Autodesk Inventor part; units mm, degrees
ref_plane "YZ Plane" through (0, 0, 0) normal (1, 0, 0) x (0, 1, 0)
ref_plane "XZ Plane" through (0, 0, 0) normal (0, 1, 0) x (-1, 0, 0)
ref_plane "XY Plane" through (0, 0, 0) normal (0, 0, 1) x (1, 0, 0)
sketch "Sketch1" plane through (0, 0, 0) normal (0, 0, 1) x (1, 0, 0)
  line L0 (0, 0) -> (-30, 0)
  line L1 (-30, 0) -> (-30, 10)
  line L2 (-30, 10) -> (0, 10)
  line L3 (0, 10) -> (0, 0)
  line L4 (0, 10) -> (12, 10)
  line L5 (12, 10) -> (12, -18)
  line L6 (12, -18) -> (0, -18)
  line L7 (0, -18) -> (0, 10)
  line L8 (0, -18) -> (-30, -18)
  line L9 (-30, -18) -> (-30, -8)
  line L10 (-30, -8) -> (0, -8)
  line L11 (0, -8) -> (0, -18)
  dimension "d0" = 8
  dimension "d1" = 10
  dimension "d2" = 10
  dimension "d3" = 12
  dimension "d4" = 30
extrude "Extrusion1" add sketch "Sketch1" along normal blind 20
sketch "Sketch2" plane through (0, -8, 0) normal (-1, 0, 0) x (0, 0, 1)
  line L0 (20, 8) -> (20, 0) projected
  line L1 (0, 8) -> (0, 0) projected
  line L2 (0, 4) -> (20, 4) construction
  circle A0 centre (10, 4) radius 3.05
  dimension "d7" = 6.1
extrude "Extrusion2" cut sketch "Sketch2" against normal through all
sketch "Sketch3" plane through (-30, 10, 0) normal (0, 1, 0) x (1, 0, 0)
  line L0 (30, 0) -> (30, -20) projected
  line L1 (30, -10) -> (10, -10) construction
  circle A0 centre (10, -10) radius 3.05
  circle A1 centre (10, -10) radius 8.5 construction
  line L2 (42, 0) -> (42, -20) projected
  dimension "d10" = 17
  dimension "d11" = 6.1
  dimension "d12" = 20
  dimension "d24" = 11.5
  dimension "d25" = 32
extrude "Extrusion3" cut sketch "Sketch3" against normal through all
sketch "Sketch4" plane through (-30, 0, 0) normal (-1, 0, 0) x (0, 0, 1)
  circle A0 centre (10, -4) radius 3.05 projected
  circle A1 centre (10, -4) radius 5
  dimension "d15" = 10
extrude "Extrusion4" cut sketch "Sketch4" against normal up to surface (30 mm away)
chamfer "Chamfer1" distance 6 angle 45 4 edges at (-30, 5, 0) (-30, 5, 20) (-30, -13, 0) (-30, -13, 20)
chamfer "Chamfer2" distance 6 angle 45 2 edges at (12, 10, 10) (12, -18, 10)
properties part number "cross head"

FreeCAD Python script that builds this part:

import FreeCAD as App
import Part
import Sketcher


def edges_at(feature, points):
    """Names of the edges that pass closest to the given points."""
    edges = feature.Shape.Edges
    near = lambda p: min(range(len(edges)), key=lambda i: edges[i].distToShape(Part.Vertex(*p))[0])
    return sorted({f"Edge{near(p) + 1}" for p in points})


def add_polygon(sketch, points):
    """Adds a closed chain of lines whose ends are joined by coincident constraints."""
    first, n = sketch.GeometryCount, len(points)
    for a, b in zip(points, points[1:] + points[:1]):
        sketch.addGeometry(Part.LineSegment(App.Vector(*a, 0), App.Vector(*b, 0)), False)
    for i in range(n):
        sketch.addConstraint(Sketcher.Constraint("Coincident", first + i, 2, first + (i + 1) % n, 1))

doc = App.newDocument("Part")
body = doc.addObject("PartDesign::Body", "Body")

sketch1 = body.newObject("Sketcher::SketchObject", "Sketch")
sketch1.AttachmentSupport = (doc.getObject("XY_Plane"), [""])
sketch1.MapMode = "FlatFace"
add_polygon(sketch1, [(-30, 0), (0, 0), (0, -8), (-30, -8), (-30, -18), (12, -18), (12, 10), (-30, 10)])
sketch1.addConstraint(Sketcher.Constraint("Horizontal", 0))
sketch1.addConstraint(Sketcher.Constraint("Vertical", 1))
sketch1.addConstraint(Sketcher.Constraint("Horizontal", 2))
sketch1.addConstraint(Sketcher.Constraint("Vertical", 3))
sketch1.addConstraint(Sketcher.Constraint("Horizontal", 4))
sketch1.addConstraint(Sketcher.Constraint("Vertical", 5))
sketch1.addConstraint(Sketcher.Constraint("Horizontal", 6))
sketch1.addConstraint(Sketcher.Constraint("Vertical", 7))
sketch1.addConstraint(Sketcher.Constraint("Coincident", 0, 2, -1, 1))
sketch1.addConstraint(Sketcher.Constraint("Vertical", 3, 2, 6, 2))
sketch1.addConstraint(Sketcher.Constraint("Equal", 3, 7))
sketch1.addConstraint(Sketcher.Constraint("DistanceX", 0, 1, 0, 2, 30.0))
sketch1.addConstraint(Sketcher.Constraint("DistanceY", 1, 2, 1, 1, 8.0))
sketch1.addConstraint(Sketcher.Constraint("DistanceY", 3, 2, 3, 1, 10.0))
sketch1.addConstraint(Sketcher.Constraint("DistanceX", -1, 1, 4, 2, 12.0))
pad1 = body.newObject("PartDesign::Pad", "Pad")
pad1.Profile = sketch1
pad1.Length = 20

sketch2 = body.newObject("Sketcher::SketchObject", "Sketch001")
sketch2.AttachmentSupport = (doc.getObject("YZ_Plane"), [""])
sketch2.MapMode = "FlatFace"
sketch2.addGeometry(Part.Circle(App.Vector(-4, 10, 0), App.Vector(0, 0, 1), 3), False)
sketch2.addConstraint(Sketcher.Constraint("Diameter", 0, 6.1))
sketch2.addConstraint(Sketcher.Constraint("DistanceX", 0, 3, -1, 1, 4.0))
sketch2.addConstraint(Sketcher.Constraint("DistanceY", -1, 1, 0, 3, 10.0))
pocket1 = body.newObject("PartDesign::Pocket", "Pocket")
pocket1.Profile = sketch2
pocket1.Type = "ThroughAll"
pocket1.Reversed = True

sketch3 = body.newObject("Sketcher::SketchObject", "Sketch002")
sketch3.AttachmentSupport = (doc.getObject("XZ_Plane"), [""])
sketch3.MapMode = "FlatFace"
sketch3.AttachmentOffset = App.Placement(App.Vector(0, 0, -10), App.Rotation())
sketch3.addGeometry(Part.Circle(App.Vector(-20, 10, 0), App.Vector(0, 0, 1), 3), False)
sketch3.addConstraint(Sketcher.Constraint("Diameter", 0, 6.1))
sketch3.addConstraint(Sketcher.Constraint("DistanceX", 0, 3, -1, 1, 20.0))
sketch3.addConstraint(Sketcher.Constraint("DistanceY", -1, 1, 0, 3, 10.0))
pocket2 = body.newObject("PartDesign::Pocket", "Pocket001")
pocket2.Profile = sketch3
pocket2.Type = "ThroughAll"
pocket2.Reversed = True

sketch4 = body.newObject("Sketcher::SketchObject", "Sketch003")
sketch4.AttachmentSupport = (doc.getObject("YZ_Plane"), [""])
sketch4.MapMode = "FlatFace"
sketch4.AttachmentOffset = App.Placement(App.Vector(0, 0, -30), App.Rotation())
sketch4.addGeometry(Part.Circle(App.Vector(-4, 10, 0), App.Vector(0, 0, 1), 5), False)
sketch4.addGeometry(Part.Circle(App.Vector(-4, 10, 0), App.Vector(0, 0, 1), 3), False)
sketch4.addConstraint(Sketcher.Constraint("Coincident", 1, 3, 0, 3))
sketch4.addConstraint(Sketcher.Constraint("Diameter", 0, 10.0))
sketch4.addConstraint(Sketcher.Constraint("DistanceY", -1, 1, 0, 3, 10.0))
sketch4.addConstraint(Sketcher.Constraint("Diameter", 1, 6.1))
sketch4.addConstraint(Sketcher.Constraint("DistanceX", 0, 3, -1, 1, 4.0))
pocket3 = body.newObject("PartDesign::Pocket", "Pocket002")
pocket3.Profile = sketch4
pocket3.Length = 30
pocket3.Reversed = True
doc.recompute()

chamfer = body.newObject("PartDesign::Chamfer", "Chamfer")
chamfer.Base = (pocket3, edges_at(pocket3, [
    (-30, 5, 0),
    (-30, 5, 20),
    (-30, -13, 0),
    (-30, -13, 20),
]))
chamfer.Size = 6
doc.recompute()

chamfer2 = body.newObject("PartDesign::Chamfer", "Chamfer001")
chamfer2.Base = (chamfer, edges_at(chamfer, [(12, 10, 10), (12, -18, 10)]))
chamfer2.Size = 6

doc.recompute()
